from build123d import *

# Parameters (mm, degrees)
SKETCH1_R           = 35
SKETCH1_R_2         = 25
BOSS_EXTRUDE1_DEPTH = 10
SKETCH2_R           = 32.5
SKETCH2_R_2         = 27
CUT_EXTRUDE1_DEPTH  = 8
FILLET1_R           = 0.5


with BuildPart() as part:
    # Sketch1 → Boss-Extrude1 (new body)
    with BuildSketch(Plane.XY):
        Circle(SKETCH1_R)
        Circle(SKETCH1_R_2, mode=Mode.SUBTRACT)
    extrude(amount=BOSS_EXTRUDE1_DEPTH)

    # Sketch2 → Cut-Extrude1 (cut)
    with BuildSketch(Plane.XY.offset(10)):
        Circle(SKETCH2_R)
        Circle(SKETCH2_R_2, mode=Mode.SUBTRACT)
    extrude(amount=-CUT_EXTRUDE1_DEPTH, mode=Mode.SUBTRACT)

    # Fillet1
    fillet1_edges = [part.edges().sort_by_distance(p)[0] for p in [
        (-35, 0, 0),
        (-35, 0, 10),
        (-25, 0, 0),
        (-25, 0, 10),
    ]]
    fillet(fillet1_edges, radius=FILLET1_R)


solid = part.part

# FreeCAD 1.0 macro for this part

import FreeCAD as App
import Part
import Sketcher
Q = App.Units.Quantity


def edges_at(feature, points):
    """Names of the edges that pass closest to the given points."""
    edges = feature.Shape.Edges
    near = lambda p: min(range(len(edges)), key=lambda i: edges[i].distToShape(Part.Vertex(*p))[0])
    return sorted({f"Edge{near(p) + 1}" for p in points})

doc = App.newDocument("Part")
body = doc.addObject("PartDesign::Body", "Body")

# Sketch on XY plane
sketch1 = body.newObject("Sketcher::SketchObject", "Sketch")
sketch1.AttachmentSupport = (doc.getObject("XY_Plane"), [""])
sketch1.MapMode = "FlatFace"
sketch1.addGeometry([
    Part.Circle(App.Vector(0, 0, 0), App.Vector(0, 0, 1), 35),
    Part.Circle(App.Vector(0, 0, 0), App.Vector(0, 0, 1), 25),
], False)
sketch1.addConstraint([
    Sketcher.Constraint("Coincident", 0, 3, -1, 1),
    Sketcher.Constraint("Coincident", 1, 3, -1, 1),
    Sketcher.Constraint("Diameter", 0, Q("70 mm")),
    Sketcher.Constraint("Diameter", 1, Q("50 mm")),
])
pad1 = body.newObject("PartDesign::Pad", "Pad")
pad1.Profile = sketch1
pad1.Length = 10

# Sketch on XY plane
sketch2 = body.newObject("Sketcher::SketchObject", "Sketch001")
sketch2.AttachmentSupport = (doc.getObject("XY_Plane"), [""])
sketch2.MapMode = "FlatFace"
sketch2.AttachmentOffset = App.Placement(App.Vector(0, 0, 10), App.Rotation())
sketch2.addGeometry([
    Part.Circle(App.Vector(0, 0, 0), App.Vector(0, 0, 1), 32.5),
    Part.Circle(App.Vector(0, 0, 0), App.Vector(0, 0, 1), 27),
], False)
sketch2.addConstraint([
    Sketcher.Constraint("Coincident", 0, 3, -1, 1),
    Sketcher.Constraint("Coincident", 1, 3, -1, 1),
    Sketcher.Constraint("Diameter", 0, Q("65 mm")),
    Sketcher.Constraint("Diameter", 1, Q("54 mm")),
])
pocket1 = body.newObject("PartDesign::Pocket", "Pocket")
pocket1.Profile = sketch2
pocket1.Length = 8
doc.recompute()

fillet = body.newObject("PartDesign::Fillet", "Fillet")
fillet.Base = (pocket1, edges_at(pocket1, [
    (-35, 0, 0),
    (-35, 0, 10),
    (-25, 0, 0),
    (-25, 0, 10),
]))
fillet.Radius = 0.5

doc.recompute()
